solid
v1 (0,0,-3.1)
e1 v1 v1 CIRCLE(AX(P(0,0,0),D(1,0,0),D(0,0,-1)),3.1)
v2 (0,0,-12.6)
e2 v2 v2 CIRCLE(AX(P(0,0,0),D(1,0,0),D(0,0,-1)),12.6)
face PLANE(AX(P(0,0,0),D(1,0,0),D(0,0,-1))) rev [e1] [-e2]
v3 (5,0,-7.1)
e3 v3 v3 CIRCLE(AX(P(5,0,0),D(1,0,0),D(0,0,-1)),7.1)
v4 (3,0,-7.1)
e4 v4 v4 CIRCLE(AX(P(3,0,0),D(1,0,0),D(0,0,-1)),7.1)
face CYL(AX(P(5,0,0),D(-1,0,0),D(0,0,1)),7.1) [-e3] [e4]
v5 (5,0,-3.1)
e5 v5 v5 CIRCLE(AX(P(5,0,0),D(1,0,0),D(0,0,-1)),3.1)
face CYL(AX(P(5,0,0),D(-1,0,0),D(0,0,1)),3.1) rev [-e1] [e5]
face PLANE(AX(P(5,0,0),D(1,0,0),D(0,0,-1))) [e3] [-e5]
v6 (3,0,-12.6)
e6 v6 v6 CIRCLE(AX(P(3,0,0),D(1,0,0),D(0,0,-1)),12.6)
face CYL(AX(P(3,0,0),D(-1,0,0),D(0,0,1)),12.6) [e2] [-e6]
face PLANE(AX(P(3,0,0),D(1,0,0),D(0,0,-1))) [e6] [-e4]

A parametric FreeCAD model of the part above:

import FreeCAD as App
import Part
import Sketcher
from FreeCAD import Vector

doc = App.newDocument("Part")
params = doc.addObject("Spreadsheet::Sheet", "Params")
for row, (alias, value) in enumerate([
    ("sketch1_diameter", "25.2 mm"),
    ("sketch1_diameter2", "14.2 mm"),
    ("pad1_length", "3 mm"),
    ("sketch2_diameter", "14.2 mm"),
    ("sketch2_diameter2", "6.2 mm"),
    ("pad2_length", "5 mm"),
], start=1):
    params.set(f"A{row}", alias)
    params.set(f"B{row}", "=" + value)
    params.setAlias(f"B{row}", alias)

body = doc.addObject("PartDesign::Body", "Body")

sketch1 = doc.addObject("Sketcher::SketchObject", "Sketch")
body.addObject(sketch1)
sketch1.AttachmentSupport = (doc.YZ_Plane, [""])
sketch1.MapMode = "FlatFace"
sketch1.addGeometry(Part.Circle(Vector(0, 0, 0), Vector(0, 0, 1), 13), False)
sketch1.addGeometry(Part.Circle(Vector(0, 0, 0), Vector(0, 0, 1), 7), False)
sketch1.addConstraint(Sketcher.Constraint("Coincident", 0, 3, -1, 1))
sketch1.addConstraint(Sketcher.Constraint("Coincident", 1, 3, -1, 1))
sketch1.addConstraint(Sketcher.Constraint("Diameter", 0, 25.2))
sketch1.addConstraint(Sketcher.Constraint("Diameter", 1, 14.2))
sketch1.setExpression("Constraints[2]", "Params.sketch1_diameter")
sketch1.setExpression("Constraints[3]", "Params.sketch1_diameter2")
pad1 = doc.addObject("PartDesign::Pad", "Pad")
body.addObject(pad1)
pad1.Profile = sketch1
pad1.setExpression("Length", "Params.pad1_length")

sketch2 = doc.addObject("Sketcher::SketchObject", "Sketch001")
body.addObject(sketch2)
sketch2.AttachmentSupport = (doc.YZ_Plane, [""])
sketch2.MapMode = "FlatFace"
sketch2.addGeometry(Part.Circle(Vector(0, 0, 0), Vector(0, 0, 1), 7.1), False)
sketch2.addGeometry(Part.Circle(Vector(0, 0, 0), Vector(0, 0, 1), 3.1), False)
sketch2.addConstraint(Sketcher.Constraint("Coincident", 0, 3, -1, 1))
sketch2.addConstraint(Sketcher.Constraint("Coincident", 1, 3, -1, 1))
sketch2.addConstraint(Sketcher.Constraint("Diameter", 0, 14.2))
sketch2.addConstraint(Sketcher.Constraint("Diameter", 1, 6.2))
sketch2.setExpression("Constraints[2]", "Params.sketch2_diameter")
sketch2.setExpression("Constraints[3]", "Params.sketch2_diameter2")
pad2 = doc.addObject("PartDesign::Pad", "Pad001")
body.addObject(pad2)
pad2.Profile = sketch2
pad2.setExpression("Length", "Params.pad2_length")

doc.recompute()
